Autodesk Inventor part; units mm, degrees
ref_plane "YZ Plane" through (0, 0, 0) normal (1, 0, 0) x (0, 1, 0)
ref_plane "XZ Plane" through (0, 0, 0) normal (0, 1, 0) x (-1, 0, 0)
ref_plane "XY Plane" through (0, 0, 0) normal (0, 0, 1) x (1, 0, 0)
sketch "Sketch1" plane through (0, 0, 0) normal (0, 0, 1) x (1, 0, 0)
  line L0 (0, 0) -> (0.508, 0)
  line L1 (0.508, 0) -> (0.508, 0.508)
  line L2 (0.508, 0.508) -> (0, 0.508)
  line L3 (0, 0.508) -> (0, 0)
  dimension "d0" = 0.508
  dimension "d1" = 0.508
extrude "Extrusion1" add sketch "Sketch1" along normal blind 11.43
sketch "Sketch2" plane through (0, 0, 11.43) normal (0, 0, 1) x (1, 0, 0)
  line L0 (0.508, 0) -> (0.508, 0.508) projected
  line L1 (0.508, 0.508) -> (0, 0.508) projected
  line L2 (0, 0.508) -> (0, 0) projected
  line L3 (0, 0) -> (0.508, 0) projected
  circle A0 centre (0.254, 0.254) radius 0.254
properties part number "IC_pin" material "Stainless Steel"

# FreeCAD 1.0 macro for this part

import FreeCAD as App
import Part
import Sketcher
from FreeCAD import Vector
Q = App.Units.Quantity


def add_polygon(sketch, points):
    """Adds a closed chain of lines whose ends are joined by coincident constraints."""
    first, n = sketch.GeometryCount, len(points)
    for a, b in zip(points, points[1:] + points[:1]):
        sketch.addGeometry(Part.LineSegment(App.Vector(*a, 0), App.Vector(*b, 0)), False)
    for i in range(n):
        sketch.addConstraint(Sketcher.Constraint("Coincident", first + i, 2, first + (i + 1) % n, 1))

doc = App.newDocument("Part")
body = doc.addObject("PartDesign::Body", "Body")

sketch1 = body.newObject("Sketcher::SketchObject", "Sketch")
sketch1.AttachmentSupport = (doc.getObject("XY_Plane"), [""])
sketch1.MapMode = "FlatFace"
add_polygon(sketch1, [(0, 0.508), (0, 0), (0.508, 0), (0.508, 0.508)])
sketch1.addConstraint([
    Sketcher.Constraint("Vertical", 0),
    Sketcher.Constraint("Horizontal", 1),
    Sketcher.Constraint("Vertical", 2),
    Sketcher.Constraint("Horizontal", 3),
    Sketcher.Constraint("Coincident", 0, 2, -1, 1),
    Sketcher.Constraint("Equal", 3, 0),
    Sketcher.Constraint("DistanceX", 1, 1, 1, 2, Q("0.02 in")),
])
pad1 = body.newObject("PartDesign::Pad", "Pad")
pad1.Profile = sketch1
pad1.Length = Q("0.45 in")

doc.recompute()
